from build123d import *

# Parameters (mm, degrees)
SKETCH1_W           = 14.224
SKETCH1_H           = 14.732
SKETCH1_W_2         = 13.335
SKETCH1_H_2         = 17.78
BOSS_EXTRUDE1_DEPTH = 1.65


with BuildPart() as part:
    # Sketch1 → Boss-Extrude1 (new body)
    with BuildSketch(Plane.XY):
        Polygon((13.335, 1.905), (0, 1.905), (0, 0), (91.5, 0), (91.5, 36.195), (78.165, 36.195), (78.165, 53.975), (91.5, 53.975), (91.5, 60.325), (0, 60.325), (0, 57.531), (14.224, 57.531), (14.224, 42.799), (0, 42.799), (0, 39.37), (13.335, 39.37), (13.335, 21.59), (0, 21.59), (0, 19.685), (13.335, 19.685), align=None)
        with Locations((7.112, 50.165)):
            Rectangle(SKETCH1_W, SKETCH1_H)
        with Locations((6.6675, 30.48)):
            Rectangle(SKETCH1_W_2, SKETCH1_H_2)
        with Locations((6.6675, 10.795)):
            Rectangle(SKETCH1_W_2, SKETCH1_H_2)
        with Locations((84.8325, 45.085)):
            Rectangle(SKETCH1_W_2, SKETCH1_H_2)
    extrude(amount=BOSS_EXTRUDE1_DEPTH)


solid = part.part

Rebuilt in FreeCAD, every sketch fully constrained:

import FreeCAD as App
import Part
import Sketcher
from FreeCAD import Vector

doc = App.newDocument("Part")
body = doc.addObject("PartDesign::Body", "Body")

sketch1 = doc.addObject("Sketcher::SketchObject", "Sketch")
body.addObject(sketch1)
sketch1.AttachmentSupport = (doc.XY_Plane, [""])
sketch1.MapMode = "FlatFace"
sketch1.addGeometry([
    Part.LineSegment(Vector(0, 0, 0), Vector(92, 0, 0)),
    Part.LineSegment(Vector(92, 0, 0), Vector(92, 60, 0)),
    Part.LineSegment(Vector(92, 60, 0), Vector(0, 60, 0)),
    Part.LineSegment(Vector(0, 60, 0), Vector(0, 0, 0)),
], False)
sketch1.addConstraint([
    Sketcher.Constraint("Coincident", 0, 2, 1, 1),
    Sketcher.Constraint("Coincident", 1, 2, 2, 1),
    Sketcher.Constraint("Coincident", 2, 2, 3, 1),
    Sketcher.Constraint("Coincident", 3, 2, 0, 1),
    Sketcher.Constraint("Horizontal", 0),
    Sketcher.Constraint("Vertical", 1),
    Sketcher.Constraint("Horizontal", 2),
    Sketcher.Constraint("Vertical", 3),
    Sketcher.Constraint("Coincident", 3, 2, -1, 1),
    Sketcher.Constraint("DistanceX", 0, 1, 0, 2, 91.5),
    Sketcher.Constraint("DistanceY", 1, 1, 1, 2, 60.325),
])
pad1 = doc.addObject("PartDesign::Pad", "Pad")
body.addObject(pad1)
pad1.Profile = sketch1
pad1.Length = 1.65

doc.recompute()
